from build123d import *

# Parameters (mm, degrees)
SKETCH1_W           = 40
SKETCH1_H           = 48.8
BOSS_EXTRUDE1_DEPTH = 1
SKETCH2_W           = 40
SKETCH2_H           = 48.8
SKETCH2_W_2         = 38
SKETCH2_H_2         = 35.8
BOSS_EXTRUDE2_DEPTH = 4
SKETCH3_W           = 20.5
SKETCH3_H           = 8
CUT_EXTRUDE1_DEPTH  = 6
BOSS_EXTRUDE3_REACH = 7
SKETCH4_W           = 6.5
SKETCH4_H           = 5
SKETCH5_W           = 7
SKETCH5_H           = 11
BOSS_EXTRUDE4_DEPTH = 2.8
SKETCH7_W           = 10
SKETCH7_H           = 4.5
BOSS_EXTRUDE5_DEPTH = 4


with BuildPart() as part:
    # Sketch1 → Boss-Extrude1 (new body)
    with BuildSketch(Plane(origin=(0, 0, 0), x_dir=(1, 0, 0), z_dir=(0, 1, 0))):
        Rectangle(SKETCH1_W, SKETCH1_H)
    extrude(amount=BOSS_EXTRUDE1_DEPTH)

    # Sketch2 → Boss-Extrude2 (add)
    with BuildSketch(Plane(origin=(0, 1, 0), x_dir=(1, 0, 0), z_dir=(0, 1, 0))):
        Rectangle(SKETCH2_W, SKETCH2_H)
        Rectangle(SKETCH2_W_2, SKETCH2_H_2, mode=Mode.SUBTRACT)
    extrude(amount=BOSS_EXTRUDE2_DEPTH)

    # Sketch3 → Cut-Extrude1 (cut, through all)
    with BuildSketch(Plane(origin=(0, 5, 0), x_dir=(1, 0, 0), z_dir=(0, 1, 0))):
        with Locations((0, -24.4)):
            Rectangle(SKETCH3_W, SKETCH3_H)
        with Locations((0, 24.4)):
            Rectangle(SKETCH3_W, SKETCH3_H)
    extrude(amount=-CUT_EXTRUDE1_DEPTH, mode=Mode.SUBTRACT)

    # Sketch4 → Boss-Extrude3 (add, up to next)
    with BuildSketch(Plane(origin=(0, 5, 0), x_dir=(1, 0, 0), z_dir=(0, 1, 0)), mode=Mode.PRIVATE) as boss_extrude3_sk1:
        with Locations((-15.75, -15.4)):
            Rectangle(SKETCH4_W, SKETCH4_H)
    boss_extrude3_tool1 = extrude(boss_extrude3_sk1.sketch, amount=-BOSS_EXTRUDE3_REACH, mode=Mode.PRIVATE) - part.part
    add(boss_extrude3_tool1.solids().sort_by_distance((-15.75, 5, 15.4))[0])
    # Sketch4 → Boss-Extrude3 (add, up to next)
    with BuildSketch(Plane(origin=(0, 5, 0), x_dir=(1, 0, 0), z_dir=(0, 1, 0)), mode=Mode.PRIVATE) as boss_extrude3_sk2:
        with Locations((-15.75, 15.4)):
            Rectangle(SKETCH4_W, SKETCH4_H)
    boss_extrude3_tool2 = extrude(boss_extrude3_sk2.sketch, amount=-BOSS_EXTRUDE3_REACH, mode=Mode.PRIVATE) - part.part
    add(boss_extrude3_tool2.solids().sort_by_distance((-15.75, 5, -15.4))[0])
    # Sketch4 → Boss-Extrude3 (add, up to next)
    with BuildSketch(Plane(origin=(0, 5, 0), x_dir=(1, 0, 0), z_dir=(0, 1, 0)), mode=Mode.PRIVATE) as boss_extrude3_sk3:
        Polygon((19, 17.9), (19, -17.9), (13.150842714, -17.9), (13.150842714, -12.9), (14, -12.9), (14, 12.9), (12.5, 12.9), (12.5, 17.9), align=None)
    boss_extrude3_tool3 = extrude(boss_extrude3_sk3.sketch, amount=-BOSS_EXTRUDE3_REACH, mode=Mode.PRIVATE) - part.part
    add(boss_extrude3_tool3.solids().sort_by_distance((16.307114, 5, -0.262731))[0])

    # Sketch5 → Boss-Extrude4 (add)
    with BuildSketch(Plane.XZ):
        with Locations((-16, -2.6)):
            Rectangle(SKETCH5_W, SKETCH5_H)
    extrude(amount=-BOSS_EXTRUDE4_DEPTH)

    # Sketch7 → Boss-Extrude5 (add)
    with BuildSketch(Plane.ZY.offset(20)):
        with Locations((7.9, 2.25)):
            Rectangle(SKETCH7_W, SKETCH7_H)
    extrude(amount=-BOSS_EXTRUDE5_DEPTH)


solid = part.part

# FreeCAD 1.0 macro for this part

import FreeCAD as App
import Part
import Sketcher
from FreeCAD import Vector


def add_polygon(sketch, points):
    """Adds a closed chain of lines whose ends are joined by coincident constraints."""
    first, n = sketch.GeometryCount, len(points)
    for a, b in zip(points, points[1:] + points[:1]):
        sketch.addGeometry(Part.LineSegment(App.Vector(*a, 0), App.Vector(*b, 0)), False)
    for i in range(n):
        sketch.addConstraint(Sketcher.Constraint("Coincident", first + i, 2, first + (i + 1) % n, 1))

doc = App.newDocument("Part")
params = doc.addObject("Spreadsheet::Sheet", "Params")
for row, (alias, value) in enumerate([
    ("sketch1_width", "40 mm"),
    ("sketch1_height", "48.8 mm"),
    ("pad1_length", "1 mm"),
    ("sketch2_width", "40 mm"),
    ("sketch2_width2", "38 mm"),
    ("sketch2_height", "48.8 mm"),
    ("sketch2_height2", "35.8 mm"),
    ("pad2_length", "4 mm"),
    ("sketch3_height", "8 mm"),
    ("sketch3_width", "20.5 mm"),
    ("sketch4_height", "5 mm"),
    ("sketch4_width", "6.5 mm"),
    ("sketch5_height", "5 mm"),
    ("sketch5_width", "6.5 mm"),
    ("sketch6_height", "5 mm"),
    ("sketch6_width", "6.5 mm"),
    ("sketch6_width2", "1.5 mm"),
    ("sketch6_height2", "35.8 mm"),
    ("sketch7_width", "7 mm"),
    ("sketch7_height", "11 mm"),
    ("pad6_length", "2.8 mm"),
    ("sketch8_height", "10 mm"),
    ("sketch8_width", "4.5 mm"),
    ("pad7_length", "4 mm"),
], start=1):
    params.set(f"A{row}", alias)
    params.set(f"B{row}", "=" + value)
    params.setAlias(f"B{row}", alias)

body = doc.addObject("PartDesign::Body", "Body")

sketch1 = body.newObject("Sketcher::SketchObject", "Sketch")
sketch1.AttachmentSupport = (doc.getObject("XZ_Plane"), [""])
sketch1.MapMode = "FlatFace"
add_polygon(sketch1, [(-20, -24), (-20, 24), (20, 24), (20, -24)])
sketch1.addConstraint([
    Sketcher.Constraint("Vertical", 0),
    Sketcher.Constraint("Horizontal", 1),
    Sketcher.Constraint("Vertical", 2),
    Sketcher.Constraint("Horizontal", 3),
    Sketcher.Constraint("Symmetric", 0, 2, 2, 2, -1, 1),
    Sketcher.Constraint("DistanceX", 1, 1, 1, 2, 40.0),
    Sketcher.Constraint("DistanceY", 0, 1, 0, 2, 48.8),
])
sketch1.setExpression("Constraints[9]", "Params.sketch1_width")
sketch1.setExpression("Constraints[10]", "Params.sketch1_height")
pad1 = body.newObject("PartDesign::Pad", "Pad")
pad1.Profile = sketch1
pad1.setExpression("Length", "Params.pad1_length")
pad1.Reversed = True

sketch2 = body.newObject("Sketcher::SketchObject", "Sketch001")
sketch2.AttachmentSupport = (doc.getObject("XZ_Plane"), [""])
sketch2.MapMode = "FlatFace"
sketch2.AttachmentOffset = App.Placement(Vector(0, 0, -1), App.Rotation())
add_polygon(sketch2, [(-20, -24), (-20, 24), (20, 24), (20, -24)])
add_polygon(sketch2, [(19, 18), (-19, 18), (-19, -18), (19, -18)])
sketch2.addConstraint([
    Sketcher.Constraint("Vertical", 0),
    Sketcher.Constraint("Horizontal", 1),
    Sketcher.Constraint("Vertical", 2),
    Sketcher.Constraint("Horizontal", 3),
    Sketcher.Constraint("Horizontal", 4),
    Sketcher.Constraint("Vertical", 5),
    Sketcher.Constraint("Horizontal", 6),
    Sketcher.Constraint("Vertical", 7),
    Sketcher.Constraint("Symmetric", 0, 2, 2, 2, -1, 1),
    Sketcher.Constraint("Symmetric", 4, 2, 6, 2, -1, 1),
    Sketcher.Constraint("DistanceX", 1, 1, 1, 2, 40.0),
    Sketcher.Constraint("DistanceX", 4, 2, 4, 1, 38.0),
    Sketcher.Constraint("DistanceY", 0, 1, 0, 2, 48.8),
    Sketcher.Constraint("DistanceY", 5, 2, 5, 1, 35.8),
])
sketch2.setExpression("Constraints[18]", "Params.sketch2_width")
sketch2.setExpression("Constraints[19]", "Params.sketch2_width2")
sketch2.setExpression("Constraints[20]", "Params.sketch2_height")
sketch2.setExpression("Constraints[21]", "Params.sketch2_height2")
pad2 = body.newObject("PartDesign::Pad", "Pad001")
pad2.Profile = sketch2
pad2.setExpression("Length", "Params.pad2_length")
pad2.Reversed = True

sketch3 = body.newObject("Sketcher::SketchObject", "Sketch002")
sketch3.AttachmentSupport = (doc.getObject("XZ_Plane"), [""])
sketch3.MapMode = "FlatFace"
sketch3.AttachmentOffset = App.Placement(Vector(0, 0, -5), App.Rotation())
add_polygon(sketch3, [(-10, 20), (-10, 28), (10, 28), (10, 20)])
add_polygon(sketch3, [(-10, -28), (-10, -20), (10, -20), (10, -28)])
sketch3.addConstraint([
    Sketcher.Constraint("Vertical", 0),
    Sketcher.Constraint("Horizontal", 1),
    Sketcher.Constraint("Vertical", 2),
    Sketcher.Constraint("Horizontal", 3),
    Sketcher.Constraint("Vertical", 4),
    Sketcher.Constraint("Horizontal", 5),
    Sketcher.Constraint("Vertical", 6),
    Sketcher.Constraint("Horizontal", 7),
    Sketcher.Constraint("Symmetric", 2, 2, 4, 2, -1, 1),
    Sketcher.Constraint("Symmetric", 0, 2, 6, 2, -1, 1),
    Sketcher.Constraint("Vertical", 3, 2, 4, 2),
    Sketcher.Constraint("DistanceY", 0, 1, 0, 2, 8.0),
    Sketcher.Constraint("DistanceX", 1, 1, 1, 2, 20.5),
    Sketcher.Constraint("DistanceY", -1, 1, 0, 2, 28.4),
])
sketch3.setExpression("Constraints[19]", "Params.sketch3_height")
sketch3.setExpression("Constraints[20]", "Params.sketch3_width")
pocket1 = body.newObject("PartDesign::Pocket", "Pocket")
pocket1.Profile = sketch3
pocket1.Type = "ThroughAll"
pocket1.Reversed = True

sketch4 = body.newObject("Sketcher::SketchObject", "Sketch003")
sketch4.AttachmentSupport = (doc.getObject("XZ_Plane"), [""])
sketch4.MapMode = "FlatFace"
sketch4.AttachmentOffset = App.Placement(Vector(0, 0, -5), App.Rotation())
add_polygon(sketch4, [(-19, 12.9), (-19, 17.9), (-12.5, 17.9), (-12.5, 12.9)])
sketch4.addConstraint([
    Sketcher.Constraint("Vertical", 0),
    Sketcher.Constraint("Horizontal", 1),
    Sketcher.Constraint("Vertical", 2),
    Sketcher.Constraint("Horizontal", 3),
    Sketcher.Constraint("DistanceY", 0, 1, 0, 2, 5.0),
    Sketcher.Constraint("DistanceX", 1, 1, 1, 2, 6.5),
    Sketcher.Constraint("DistanceX", 0, 2, -1, 1, 19.0),
    Sketcher.Constraint("DistanceY", -1, 1, 0, 2, 17.9),
])
sketch4.setExpression("Constraints[8]", "Params.sketch4_height")
sketch4.setExpression("Constraints[9]", "Params.sketch4_width")
pad3 = body.newObject("PartDesign::Pad", "Pad002")
pad3.Profile = sketch4
pad3.Type = "UpToFirst"

sketch5 = body.newObject("Sketcher::SketchObject", "Sketch004")
sketch5.AttachmentSupport = (doc.getObject("XZ_Plane"), [""])
sketch5.MapMode = "FlatFace"
sketch5.AttachmentOffset = App.Placement(Vector(0, 0, -5), App.Rotation())
add_polygon(sketch5, [(-19, -17.9), (-19, -12.9), (-12.5, -12.9), (-12.5, -17.9)])
sketch5.addConstraint([
    Sketcher.Constraint("Vertical", 0),
    Sketcher.Constraint("Horizontal", 1),
    Sketcher.Constraint("Vertical", 2),
    Sketcher.Constraint("Horizontal", 3),
    Sketcher.Constraint("DistanceY", 0, 1, 0, 2, 5.0),
    Sketcher.Constraint("DistanceX", 1, 1, 1, 2, 6.5),
    Sketcher.Constraint("DistanceX", 0, 2, -1, 1, 19.0),
    Sketcher.Constraint("DistanceY", 0, 2, -1, 1, 12.9),
])
sketch5.setExpression("Constraints[8]", "Params.sketch5_height")
sketch5.setExpression("Constraints[9]", "Params.sketch5_width")
pad4 = body.newObject("PartDesign::Pad", "Pad003")
pad4.Profile = sketch5
pad4.Type = "UpToFirst"

sketch6 = body.newObject("Sketcher::SketchObject", "Sketch005")
sketch6.AttachmentSupport = (doc.getObject("XZ_Plane"), [""])
sketch6.MapMode = "FlatFace"
sketch6.AttachmentOffset = App.Placement(Vector(0, 0, -5), App.Rotation())
add_polygon(sketch6, [(19, 17.9), (19, -17.9), (12.5, -17.9), (12.5, -12.9), (14, -12.9), (14, 12.9), (13.2, 12.9), (13.2, 17.9)])
sketch6.addConstraint([
    Sketcher.Constraint("Vertical", 0),
    Sketcher.Constraint("Horizontal", 1),
    Sketcher.Constraint("Vertical", 2),
    Sketcher.Constraint("Horizontal", 3),
    Sketcher.Constraint("Vertical", 4),
    Sketcher.Constraint("Horizontal", 5),
    Sketcher.Constraint("Vertical", 6),
    Sketcher.Constraint("Horizontal", 7),
    Sketcher.Constraint("Equal", 2, 6),
    Sketcher.Constraint("DistanceY", 2, 1, 2, 2, 5.0),
    Sketcher.Constraint("DistanceX", 1, 2, 1, 1, 6.5),
    Sketcher.Constraint("DistanceX", 3, 1, 3, 2, 1.5),
    Sketcher.Constraint("DistanceY", 0, 2, 0, 1, 35.8),
    Sketcher.Constraint("DistanceX", -1, 1, 0, 2, 19.0),
    Sketcher.Constraint("DistanceY", 0, 2, -1, 1, 17.9),
    Sketcher.Constraint("DistanceX", 5, 2, 5, 1, 0.849157),
])
sketch6.setExpression("Constraints[17]", "Params.sketch6_height")
sketch6.setExpression("Constraints[18]", "Params.sketch6_width")
sketch6.setExpression("Constraints[19]", "Params.sketch6_width2")
sketch6.setExpression("Constraints[20]", "Params.sketch6_height2")
pad5 = body.newObject("PartDesign::Pad", "Pad004")
pad5.Profile = sketch6
pad5.Type = "UpToFirst"

sketch7 = body.newObject("Sketcher::SketchObject", "Sketch006")
sketch7.AttachmentSupport = (doc.getObject("XZ_Plane"), [""])
sketch7.MapMode = "FlatFace"
add_polygon(sketch7, [(-20, 3), (-20, -8), (-12, -8), (-12, 3)])
sketch7.addConstraint([
    Sketcher.Constraint("Vertical", 0),
    Sketcher.Constraint("Horizontal", 1),
    Sketcher.Constraint("Vertical", 2),
    Sketcher.Constraint("Horizontal", 3),
    Sketcher.Constraint("DistanceX", 1, 1, 1, 2, 7.0),
    Sketcher.Constraint("DistanceY", 0, 2, 0, 1, 11.0),
    Sketcher.Constraint("DistanceX", 0, 2, -1, 1, 19.5),
    Sketcher.Constraint("DistanceY", 0, 2, -1, 1, 8.1),
])
sketch7.setExpression("Constraints[8]", "Params.sketch7_width")
sketch7.setExpression("Constraints[9]", "Params.sketch7_height")
pad6 = body.newObject("PartDesign::Pad", "Pad005")
pad6.Profile = sketch7
pad6.setExpression("Length", "Params.pad6_length")
pad6.Reversed = True

sketch8 = body.newObject("Sketcher::SketchObject", "Sketch007")
sketch8.AttachmentSupport = (doc.getObject("YZ_Plane"), [""])
sketch8.MapMode = "FlatFace"
sketch8.AttachmentOffset = App.Placement(Vector(0, 0, -20), App.Rotation())
add_polygon(sketch8, [(4.5, 2.9), (0, 2.9), (0, 12.9), (4.5, 12.9)])
sketch8.addConstraint([
    Sketcher.Constraint("Horizontal", 0),
    Sketcher.Constraint("Vertical", 1),
    Sketcher.Constraint("Horizontal", 2),
    Sketcher.Constraint("Vertical", 3),
    Sketcher.Constraint("PointOnObject", 0, 2, -2),
    Sketcher.Constraint("DistanceY", 1, 1, 1, 2, 10.0),
    Sketcher.Constraint("DistanceX", 0, 2, 0, 1, 4.5),
    Sketcher.Constraint("DistanceY", -1, 1, 0, 2, 2.9),
])
sketch8.setExpression("Constraints[9]", "Params.sketch8_height")
sketch8.setExpression("Constraints[10]", "Params.sketch8_width")
pad7 = body.newObject("PartDesign::Pad", "Pad006")
pad7.Profile = sketch8
pad7.setExpression("Length", "Params.pad7_length")

doc.recompute()
